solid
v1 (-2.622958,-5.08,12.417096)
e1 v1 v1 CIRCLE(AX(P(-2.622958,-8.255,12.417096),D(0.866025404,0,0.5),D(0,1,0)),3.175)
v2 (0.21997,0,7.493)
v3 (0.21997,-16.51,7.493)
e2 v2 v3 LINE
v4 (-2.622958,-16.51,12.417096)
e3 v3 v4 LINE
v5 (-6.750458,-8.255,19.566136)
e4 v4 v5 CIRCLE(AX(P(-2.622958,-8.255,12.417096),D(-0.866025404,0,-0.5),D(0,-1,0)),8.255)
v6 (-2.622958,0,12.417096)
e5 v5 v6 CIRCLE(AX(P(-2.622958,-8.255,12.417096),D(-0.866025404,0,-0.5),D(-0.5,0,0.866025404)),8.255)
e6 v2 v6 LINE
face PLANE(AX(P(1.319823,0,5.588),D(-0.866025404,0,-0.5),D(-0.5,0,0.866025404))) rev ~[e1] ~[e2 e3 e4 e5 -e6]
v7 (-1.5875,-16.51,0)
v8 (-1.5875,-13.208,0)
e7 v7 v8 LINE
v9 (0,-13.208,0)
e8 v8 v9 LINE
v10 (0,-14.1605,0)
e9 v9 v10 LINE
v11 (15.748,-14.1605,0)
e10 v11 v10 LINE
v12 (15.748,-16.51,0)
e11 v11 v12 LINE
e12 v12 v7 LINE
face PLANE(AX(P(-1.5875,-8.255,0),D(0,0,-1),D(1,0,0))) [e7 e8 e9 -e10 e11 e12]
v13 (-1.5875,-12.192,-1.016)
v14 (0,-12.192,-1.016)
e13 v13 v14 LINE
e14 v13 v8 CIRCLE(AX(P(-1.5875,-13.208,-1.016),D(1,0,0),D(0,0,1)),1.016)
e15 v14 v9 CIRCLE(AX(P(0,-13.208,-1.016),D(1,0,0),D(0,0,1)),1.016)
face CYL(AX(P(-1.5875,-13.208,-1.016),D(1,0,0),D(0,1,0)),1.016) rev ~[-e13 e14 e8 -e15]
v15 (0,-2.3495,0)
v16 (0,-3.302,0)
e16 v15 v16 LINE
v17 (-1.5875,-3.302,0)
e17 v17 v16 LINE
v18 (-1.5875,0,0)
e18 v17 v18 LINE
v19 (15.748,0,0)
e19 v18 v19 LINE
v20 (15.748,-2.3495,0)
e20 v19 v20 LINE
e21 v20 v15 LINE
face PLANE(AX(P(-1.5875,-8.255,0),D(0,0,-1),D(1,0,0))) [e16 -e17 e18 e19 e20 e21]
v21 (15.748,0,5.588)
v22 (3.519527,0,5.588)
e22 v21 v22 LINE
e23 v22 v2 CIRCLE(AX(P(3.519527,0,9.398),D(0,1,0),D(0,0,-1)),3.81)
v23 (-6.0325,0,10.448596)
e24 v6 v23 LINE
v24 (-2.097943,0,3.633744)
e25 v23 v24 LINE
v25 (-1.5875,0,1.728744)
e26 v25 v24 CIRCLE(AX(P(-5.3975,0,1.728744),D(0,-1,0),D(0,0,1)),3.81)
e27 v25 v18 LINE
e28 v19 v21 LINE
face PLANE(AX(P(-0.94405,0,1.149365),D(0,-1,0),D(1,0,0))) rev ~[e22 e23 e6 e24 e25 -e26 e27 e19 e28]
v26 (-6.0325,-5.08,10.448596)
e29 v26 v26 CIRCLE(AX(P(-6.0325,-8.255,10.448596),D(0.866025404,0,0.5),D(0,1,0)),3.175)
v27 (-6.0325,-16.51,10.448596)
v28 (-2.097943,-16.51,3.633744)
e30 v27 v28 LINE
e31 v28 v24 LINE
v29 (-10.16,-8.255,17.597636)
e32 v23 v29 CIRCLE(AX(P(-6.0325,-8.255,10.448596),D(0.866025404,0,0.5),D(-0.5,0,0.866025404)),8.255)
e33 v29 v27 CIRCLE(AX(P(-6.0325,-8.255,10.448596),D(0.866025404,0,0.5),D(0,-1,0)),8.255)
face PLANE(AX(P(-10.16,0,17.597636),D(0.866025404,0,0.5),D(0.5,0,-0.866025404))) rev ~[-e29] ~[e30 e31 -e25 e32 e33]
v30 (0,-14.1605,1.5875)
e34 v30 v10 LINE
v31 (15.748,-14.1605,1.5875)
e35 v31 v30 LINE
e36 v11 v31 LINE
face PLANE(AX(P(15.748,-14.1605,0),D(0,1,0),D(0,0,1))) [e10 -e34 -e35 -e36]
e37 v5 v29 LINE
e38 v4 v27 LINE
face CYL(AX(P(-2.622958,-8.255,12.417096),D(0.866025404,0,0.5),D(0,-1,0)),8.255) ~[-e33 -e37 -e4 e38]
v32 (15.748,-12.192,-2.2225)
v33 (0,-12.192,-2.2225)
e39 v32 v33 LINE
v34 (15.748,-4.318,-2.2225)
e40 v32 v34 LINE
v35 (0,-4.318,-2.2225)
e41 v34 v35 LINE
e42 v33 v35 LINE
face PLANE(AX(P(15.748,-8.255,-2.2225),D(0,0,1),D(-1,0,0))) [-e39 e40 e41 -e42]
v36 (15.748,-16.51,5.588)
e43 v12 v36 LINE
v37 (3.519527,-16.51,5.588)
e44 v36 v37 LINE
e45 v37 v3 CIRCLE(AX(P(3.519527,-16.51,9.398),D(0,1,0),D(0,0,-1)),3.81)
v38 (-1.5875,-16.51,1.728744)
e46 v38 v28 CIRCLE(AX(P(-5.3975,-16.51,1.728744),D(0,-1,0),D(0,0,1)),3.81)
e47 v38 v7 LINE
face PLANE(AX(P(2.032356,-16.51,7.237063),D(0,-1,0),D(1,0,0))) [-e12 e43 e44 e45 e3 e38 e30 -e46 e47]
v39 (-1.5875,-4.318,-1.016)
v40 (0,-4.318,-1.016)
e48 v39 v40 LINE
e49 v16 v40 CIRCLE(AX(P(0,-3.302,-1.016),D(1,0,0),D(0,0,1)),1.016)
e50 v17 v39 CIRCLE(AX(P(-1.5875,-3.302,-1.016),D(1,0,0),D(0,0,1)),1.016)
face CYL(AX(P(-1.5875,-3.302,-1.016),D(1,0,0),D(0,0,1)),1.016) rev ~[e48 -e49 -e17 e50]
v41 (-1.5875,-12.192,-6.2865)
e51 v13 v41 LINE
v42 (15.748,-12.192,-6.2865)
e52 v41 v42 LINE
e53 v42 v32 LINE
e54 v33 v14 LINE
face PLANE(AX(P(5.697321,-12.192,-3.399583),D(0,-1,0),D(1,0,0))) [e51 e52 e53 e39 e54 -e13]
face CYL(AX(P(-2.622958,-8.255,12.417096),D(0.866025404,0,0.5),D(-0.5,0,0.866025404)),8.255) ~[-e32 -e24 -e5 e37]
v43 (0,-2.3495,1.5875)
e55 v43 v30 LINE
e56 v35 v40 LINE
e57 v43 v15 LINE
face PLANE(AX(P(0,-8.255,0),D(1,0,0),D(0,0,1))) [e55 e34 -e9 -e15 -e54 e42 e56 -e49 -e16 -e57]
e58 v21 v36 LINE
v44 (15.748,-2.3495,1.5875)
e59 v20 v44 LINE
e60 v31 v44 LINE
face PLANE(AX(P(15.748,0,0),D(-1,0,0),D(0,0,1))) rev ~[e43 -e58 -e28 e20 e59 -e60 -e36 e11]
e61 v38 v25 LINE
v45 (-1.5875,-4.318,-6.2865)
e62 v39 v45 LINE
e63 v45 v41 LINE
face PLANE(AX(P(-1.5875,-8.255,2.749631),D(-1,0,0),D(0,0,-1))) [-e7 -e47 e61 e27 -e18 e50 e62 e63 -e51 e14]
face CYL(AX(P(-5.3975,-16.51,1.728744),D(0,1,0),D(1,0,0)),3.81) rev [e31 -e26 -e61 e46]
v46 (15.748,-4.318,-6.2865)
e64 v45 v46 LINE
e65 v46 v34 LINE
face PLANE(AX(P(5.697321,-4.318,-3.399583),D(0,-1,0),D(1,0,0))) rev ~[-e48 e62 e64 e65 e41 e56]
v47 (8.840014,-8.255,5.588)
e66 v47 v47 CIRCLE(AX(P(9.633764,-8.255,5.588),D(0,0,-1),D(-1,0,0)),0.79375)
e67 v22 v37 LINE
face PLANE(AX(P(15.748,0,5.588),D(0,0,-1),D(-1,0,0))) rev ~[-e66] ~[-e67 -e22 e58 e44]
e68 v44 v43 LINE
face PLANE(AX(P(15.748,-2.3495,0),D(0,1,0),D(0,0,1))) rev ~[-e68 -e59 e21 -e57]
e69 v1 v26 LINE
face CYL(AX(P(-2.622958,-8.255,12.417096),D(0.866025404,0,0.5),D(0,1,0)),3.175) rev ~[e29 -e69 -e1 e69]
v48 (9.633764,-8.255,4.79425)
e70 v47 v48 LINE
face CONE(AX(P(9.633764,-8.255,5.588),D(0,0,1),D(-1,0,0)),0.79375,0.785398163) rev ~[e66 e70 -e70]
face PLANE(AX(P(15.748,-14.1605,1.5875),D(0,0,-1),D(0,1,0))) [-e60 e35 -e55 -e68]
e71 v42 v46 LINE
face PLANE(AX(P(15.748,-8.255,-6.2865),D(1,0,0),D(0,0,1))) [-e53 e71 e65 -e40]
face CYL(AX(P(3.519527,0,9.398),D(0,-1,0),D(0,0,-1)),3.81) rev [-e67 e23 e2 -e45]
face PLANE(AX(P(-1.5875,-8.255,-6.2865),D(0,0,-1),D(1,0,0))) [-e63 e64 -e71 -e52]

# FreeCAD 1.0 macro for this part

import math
import FreeCAD as App
import Part
import Sketcher
from FreeCAD import Vector
Q = App.Units.Quantity


def edges_at(feature, points):
    """Names of the edges that pass closest to the given points."""
    edges = feature.Shape.Edges
    near = lambda p: min(range(len(edges)), key=lambda i: edges[i].distToShape(Part.Vertex(*p))[0])
    return sorted({f"Edge{near(p) + 1}" for p in points})

doc = App.newDocument("Part")
body = doc.addObject("PartDesign::Body", "Body")

# Sketch on XZ plane
sketch1 = doc.addObject("Sketcher::SketchObject", "Sketch")
body.addObject(sketch1)
sketch1.AttachmentSupport = (doc.XZ_Plane, [""])
sketch1.MapMode = "FlatFace"
sketch1.addGeometry([
    Part.LineSegment(Vector(0, 0, 0), Vector(15.748, 0, 0)),  # 0
    Part.LineSegment(Vector(15.748, 0, 0), Vector(15.748, 5.588, 0)),  # 1
    Part.LineSegment(Vector(15.748, 5.588, 0), Vector(1.319823, 5.588, 0)),  # 2
    Part.LineSegment(Vector(1.319823, 5.588, 0), Vector(-6.750458, 19.566136, 0)),  # 3
    Part.LineSegment(Vector(-6.750458, 19.566136, 0), Vector(-10.16, 17.597636, 0)),  # 4
    Part.LineSegment(Vector(-10.16, 17.597636, 0), Vector(0, 0, 0)),  # 5
], False)
sketch1.addConstraint([
    Sketcher.Constraint("Coincident", 0, 2, 1, 1),
    Sketcher.Constraint("Coincident", 1, 2, 2, 1),
    Sketcher.Constraint("Coincident", 2, 2, 3, 1),
    Sketcher.Constraint("Coincident", 3, 2, 4, 1),
    Sketcher.Constraint("Coincident", 4, 2, 5, 1),
    Sketcher.Constraint("Coincident", 5, 2, 0, 1),
    Sketcher.Constraint("Horizontal", 0),
    Sketcher.Constraint("Vertical", 1),
    Sketcher.Constraint("Horizontal", 2),
    Sketcher.Constraint("Coincident", 5, 2, -1, 1),
    Sketcher.Constraint("Perpendicular", 3, 4),
    Sketcher.Constraint("Perpendicular", 4, 5),
    Sketcher.Constraint("Angle", 3, Q("120 deg")),
    Sketcher.Constraint("Distance", 5, Q("0.8 in")),
    Sketcher.Constraint("DistanceX", 0, 1, 0, 2, Q("0.62 in")),
    Sketcher.Constraint("DistanceY", 1, 1, 1, 2, Q("0.22 in")),
    Sketcher.Constraint("Distance", 4, Q("0.155 in")),
])
pad1 = doc.addObject("PartDesign::Pad", "Pad")
body.addObject(pad1)
pad1.Profile = sketch1
pad1.Length = Q("0.65 in")

# Sketch on YZ plane
sketch2 = doc.addObject("Sketcher::SketchObject", "Sketch001")
body.addObject(sketch2)
sketch2.AttachmentSupport = (doc.YZ_Plane, [""])
sketch2.MapMode = "FlatFace"
sketch2.AttachmentOffset = App.Placement(Vector(0, 0, 0.62 * 25.4), App.Rotation())
sketch2.addGeometry([
    Part.LineSegment(Vector(-14.1605, 1.5875, 0), Vector(-14.1605, 0, 0)),
    Part.LineSegment(Vector(-14.1605, 0, 0), Vector(-2.3495, 0, 0)),
    Part.LineSegment(Vector(-2.3495, 0, 0), Vector(-2.3495, 1.5875, 0)),
    Part.LineSegment(Vector(-2.3495, 1.5875, 0), Vector(-14.1605, 1.5875, 0)),
], False)
sketch2.addConstraint([
    Sketcher.Constraint("Coincident", 0, 2, 1, 1),
    Sketcher.Constraint("Coincident", 1, 2, 2, 1),
    Sketcher.Constraint("Coincident", 2, 2, 3, 1),
    Sketcher.Constraint("Coincident", 3, 2, 0, 1),
    Sketcher.Constraint("Vertical", 0),
    Sketcher.Constraint("Horizontal", 1),
    Sketcher.Constraint("Vertical", 2),
    Sketcher.Constraint("Horizontal", 3),
    Sketcher.Constraint("PointOnObject", 0, 2, -1),
    Sketcher.Constraint("DistanceX", 1, 1, 1, 2, Q("0.465 in")),
    Sketcher.Constraint("DistanceY", 0, 2, 0, 1, Q("0.0625 in")),
    Sketcher.Constraint("DistanceX", 0, 2, -1, 1, Q("0.5575 in")),
])
pocket1 = doc.addObject("PartDesign::Pocket", "Pocket")
body.addObject(pocket1)
pocket1.Profile = sketch2
pocket1.Type = "ThroughAll"

# Sketch on YZ plane
sketch3 = doc.addObject("Sketcher::SketchObject", "Sketch002")
body.addObject(sketch3)
sketch3.AttachmentSupport = (doc.YZ_Plane, [""])
sketch3.MapMode = "FlatFace"
sketch3.AttachmentOffset = App.Placement(Vector(0, 0, 0.62 * 25.4), App.Rotation())
sketch3.addGeometry([
    Part.LineSegment(Vector(-14.1605, 1.5875, 0), Vector(-14.1605, 0, 0)),
    Part.LineSegment(Vector(-14.1605, 0, 0), Vector(-2.3495, 0, 0)),
    Part.LineSegment(Vector(-2.3495, 0, 0), Vector(-2.3495, 1.5875, 0)),
    Part.LineSegment(Vector(-2.3495, 1.5875, 0), Vector(-14.1605, 1.5875, 0)),
], False)
sketch3.addConstraint([
    Sketcher.Constraint("Coincident", 0, 2, 1, 1),
    Sketcher.Constraint("Coincident", 1, 2, 2, 1),
    Sketcher.Constraint("Coincident", 2, 2, 3, 1),
    Sketcher.Constraint("Coincident", 3, 2, 0, 1),
    Sketcher.Constraint("Vertical", 0),
    Sketcher.Constraint("Horizontal", 1),
    Sketcher.Constraint("Vertical", 2),
    Sketcher.Constraint("Horizontal", 3),
    Sketcher.Constraint("PointOnObject", 0, 2, -1),
    Sketcher.Constraint("DistanceX", 1, 1, 1, 2, Q("0.465 in")),
    Sketcher.Constraint("DistanceY", 0, 2, 0, 1, Q("0.0625 in")),
    Sketcher.Constraint("DistanceX", 0, 2, -1, 1, Q("0.5575 in")),
])
pocket2 = doc.addObject("PartDesign::Pocket", "Pocket001")
body.addObject(pocket2)
pocket2.Profile = sketch3
pocket2.Type = "ThroughAll"

# Sketch on an angled plane
sketch4 = doc.addObject("Sketcher::SketchObject", "Sketch003")
body.addObject(sketch4)
sketch4.Placement = App.Placement(Vector(3.409542, 0, 1.9685), App.Rotation(Vector(0, 1, 0), Vector(-0.5, 0, 0.866025404), Vector(0.866025404, 0, 0.5), "ZXY"))
sketch4.addGeometry(Part.Circle(Vector(-8.255, 12.065, 0), Vector(0, 0, 1), 3.175), False)
sketch4.addConstraint([
    Sketcher.Constraint("Diameter", 0, Q("0.25 in")),
    Sketcher.Constraint("DistanceX", 0, 3, -1, 1, Q("0.325 in")),
    Sketcher.Constraint("DistanceY", -1, 1, 0, 3, Q("0.475 in")),
])
pocket3 = doc.addObject("PartDesign::Pocket", "Pocket002")
body.addObject(pocket3)
pocket3.Profile = sketch4
pocket3.Type = "ThroughAll"

# Sketch on XZ plane
sketch5 = doc.addObject("Sketcher::SketchObject", "Sketch004")
body.addObject(sketch5)
sketch5.AttachmentSupport = (doc.XZ_Plane, [""])
sketch5.MapMode = "FlatFace"
sketch5.AttachmentOffset = App.Placement(Vector(0, 0, 0.325 * 25.4), App.Rotation())
sketch5.addGeometry([
    Part.LineSegment(Vector(0, -2.2225, 0), Vector(0, 0, 0)),  # 0
    Part.LineSegment(Vector(0, 0, 0), Vector(-0.916544, 1.5875, 0)),  # 1
    Part.LineSegment(Vector(-0.916544, 1.5875, 0), Vector(-1.5875, 2.749631, 0)),  # 2
    Part.LineSegment(Vector(-1.5875, 2.749631, 0), Vector(-1.5875, -6.2865, 0)),  # 3
    Part.LineSegment(Vector(-1.5875, -6.2865, 0), Vector(15.748, -6.2865, 0)),  # 4
    Part.LineSegment(Vector(15.748, -6.2865, 0), Vector(15.748, -2.2225, 0)),  # 5
    Part.LineSegment(Vector(15.748, -2.2225, 0), Vector(0, -2.2225, 0)),  # 6
], False)
sketch5.addConstraint([
    Sketcher.Constraint("Coincident", 0, 2, 1, 1),
    Sketcher.Constraint("Coincident", 1, 2, 2, 1),
    Sketcher.Constraint("Coincident", 2, 2, 3, 1),
    Sketcher.Constraint("Coincident", 3, 2, 4, 1),
    Sketcher.Constraint("Coincident", 4, 2, 5, 1),
    Sketcher.Constraint("Coincident", 5, 2, 6, 1),
    Sketcher.Constraint("Coincident", 6, 2, 0, 1),
    Sketcher.Constraint("Vertical", 0),
    Sketcher.Constraint("Vertical", 3),
    Sketcher.Constraint("Horizontal", 4),
    Sketcher.Constraint("Vertical", 5),
    Sketcher.Constraint("Horizontal", 6),
    Sketcher.Constraint("Coincident", 0, 2, -1, 1),
    Sketcher.Constraint("Parallel", 1, 2),
    Sketcher.Constraint("Angle", 1, Q("120 deg")),
    Sketcher.Constraint("DistanceX", 6, 2, 6, 1, Q("0.62 in")),
    Sketcher.Constraint("DistanceY", 5, 1, 5, 2, Q("0.16 in")),
    Sketcher.Constraint("DistanceY", 3, 2, 1, 2, Q("0.31 in")),
    Sketcher.Constraint("DistanceX", 4, 1, 4, 2, Q("0.6825 in")),
    Sketcher.Constraint("DistanceY", 0, 1, 0, 2, Q("0.0875 in")),
])
pad2 = doc.addObject("PartDesign::Pad", "Pad001")
body.addObject(pad2)
pad2.Profile = sketch5
pad2.Length = Q("0.31 in")
pad2.Midplane = True

# Sketch on XZ plane
sketch6 = doc.addObject("Sketcher::SketchObject", "Sketch005")
body.addObject(sketch6)
sketch6.AttachmentSupport = (doc.XZ_Plane, [""])
sketch6.MapMode = "FlatFace"
sketch6.AttachmentOffset = App.Placement(Vector(0, 0, 0.325 * 25.4), App.Rotation())
sketch6.addGeometry([
    Part.LineSegment(Vector(-1.5875, 0, 0), Vector(0, 0, 0)),  # 0
    Part.LineSegment(Vector(0, 0, 0), Vector(0, 1.5875, 0)),  # 1
    Part.LineSegment(Vector(0, 1.5875, 0), Vector(-0.916544, 1.5875, 0)),  # 2
    Part.LineSegment(Vector(-0.916544, 1.5875, 0), Vector(-1.5875, 2.749631, 0)),  # 3
    Part.LineSegment(Vector(-1.5875, 2.749631, 0), Vector(-1.5875, 0, 0)),  # 4
], False)
sketch6.addConstraint([
    Sketcher.Constraint("Coincident", 0, 2, 1, 1),
    Sketcher.Constraint("Coincident", 1, 2, 2, 1),
    Sketcher.Constraint("Coincident", 2, 2, 3, 1),
    Sketcher.Constraint("Coincident", 3, 2, 4, 1),
    Sketcher.Constraint("Coincident", 4, 2, 0, 1),
    Sketcher.Constraint("Horizontal", 0),
    Sketcher.Constraint("Vertical", 1),
    Sketcher.Constraint("Horizontal", 2),
    Sketcher.Constraint("Vertical", 4),
    Sketcher.Constraint("Coincident", 0, 2, -1, 1),
    Sketcher.Constraint("Equal", 0, 1),
    Sketcher.Constraint("Angle", 3, Q("120 deg")),
    Sketcher.Constraint("DistanceX", 0, 1, 0, 2, Q("0.0625 in")),
    Sketcher.Constraint("DistanceY", 4, 2, 4, 1, 2.749631),
])
pad3 = doc.addObject("PartDesign::Pad", "Pad002")
body.addObject(pad3)
pad3.Profile = sketch6
pad3.Length = Q("0.65 in")
pad3.Midplane = True
doc.recompute()

fillet = doc.addObject("PartDesign::Fillet", "Fillet")
body.addObject(fillet)
fillet.Base = (pad3, edges_at(pad3, [(-0.794, -4.318, 0), (-0.794, -12.192, 0)]))
fillet.Radius = Q("0.04 in")
doc.recompute()

fillet2 = doc.addObject("PartDesign::Fillet", "Fillet001")
body.addObject(fillet2)
fillet2.Base = (fillet, edges_at(fillet, [(-1.587, -8.255, 2.75), (1.32, -8.255, 5.588)]))
fillet2.Radius = Q("0.15 in")

# Sketch on XZ plane
sketch7 = doc.addObject("Sketcher::SketchObject", "Sketch006")
body.addObject(sketch7)
sketch7.AttachmentSupport = (doc.XZ_Plane, [""])
sketch7.MapMode = "FlatFace"
sketch7.AttachmentOffset = App.Placement(Vector(0, 0, 0.325 * 25.4), App.Rotation())
sketch7.addGeometry([
    Part.LineSegment(Vector(9.633764, 4.79425, 0), Vector(9.633764, 5.588, 0)),
    Part.LineSegment(Vector(9.633764, 5.588, 0), Vector(8.840014, 5.588, 0)),
    Part.LineSegment(Vector(8.840014, 5.588, 0), Vector(9.633764, 4.79425, 0)),
], False)
sketch7.addGeometry(Part.LineSegment(Vector(9.633764, 5.588, 0), Vector(9.633764, 4.79425, 0)), True)  # axis
sketch7.addConstraint([
    Sketcher.Constraint("Coincident", 0, 2, 1, 1),
    Sketcher.Constraint("Coincident", 1, 2, 2, 1),
    Sketcher.Constraint("Coincident", 2, 2, 0, 1),
    Sketcher.Constraint("Vertical", 0),
    Sketcher.Constraint("Horizontal", 1),
    Sketcher.Constraint("Vertical", 3),
    Sketcher.Constraint("Coincident", 3, 1, 0, 2),
    Sketcher.Constraint("Equal", 1, 0),
    Sketcher.Constraint("Equal", 0, 3),
    Sketcher.Constraint("DistanceX", 1, 2, 1, 1, Q("0.03125 in")),
    Sketcher.Constraint("DistanceY", -1, 1, 0, 2, Q("0.22 in")),
    Sketcher.Constraint("DistanceX", -1, 1, 0, 2, 9.633764),
])
groove = doc.addObject("PartDesign::Groove", "Groove")
body.addObject(groove)
groove.Profile = sketch7
groove.ReferenceAxis = (sketch7, ["Axis0"])
groove.Angle = 360

# Sketch on an angled plane
sketch8 = doc.addObject("Sketcher::SketchObject", "Sketch007")
body.addObject(sketch8)
sketch8.Placement = App.Placement(Vector(3.409542, 0, 1.9685), App.Rotation(Vector(0, 1, 0), Vector(-0.5, 0, 0.866025404), Vector(0.866025404, 0, 0.5), "ZXY"))
sketch8.addGeometry([
    Part.LineSegment(Vector(-16.51, 20.32, 0), Vector(-16.51, 12.065, 0)),  # 0
    Part.ArcOfCircle(Part.Circle(Vector(-8.255, 12.065, 0), Vector(0, 0, 1), 8.255), math.radians(90), math.radians(180)),  # 1
    Part.LineSegment(Vector(-8.255, 20.32, 0), Vector(-16.51, 20.32, 0)),  # 2
    Part.LineSegment(Vector(0, 20.32, 0), Vector(-8.255, 20.32, 0)),  # 3
    Part.ArcOfCircle(Part.Circle(Vector(-8.255, 12.065, 0), Vector(0, 0, 1), 8.255), math.radians(0), math.radians(90)),  # 4
    Part.LineSegment(Vector(0, 12.065, 0), Vector(0, 20.32, 0)),  # 5
], False)
sketch8.addConstraint([
    Sketcher.Constraint("Tangent", 0, 2, 1, 2),
    Sketcher.Constraint("Tangent", 1, 1, 2, 1),
    Sketcher.Constraint("Coincident", 2, 2, 0, 1),
    Sketcher.Constraint("Tangent", 3, 2, 4, 2),
    Sketcher.Constraint("Tangent", 4, 1, 5, 1),
    Sketcher.Constraint("Coincident", 5, 2, 3, 1),
    Sketcher.Constraint("Vertical", 0),
    Sketcher.Constraint("Horizontal", 2),
    Sketcher.Constraint("Horizontal", 3),
    Sketcher.Constraint("Vertical", 5),
    Sketcher.Constraint("Coincident", 4, 3, 1, 3),
    Sketcher.Constraint("Equal", 1, 4),
    Sketcher.Constraint("PointOnObject", 4, 1, -2),
    Sketcher.Constraint("Radius", 1, Q("0.325 in")),
    Sketcher.Constraint("DistanceY", -1, 1, 1, 1, Q("0.8 in")),
])
pocket4 = doc.addObject("PartDesign::Pocket", "Pocket003")
body.addObject(pocket4)
pocket4.Profile = sketch8
pocket4.Length = Q("1 in")

doc.recompute()
